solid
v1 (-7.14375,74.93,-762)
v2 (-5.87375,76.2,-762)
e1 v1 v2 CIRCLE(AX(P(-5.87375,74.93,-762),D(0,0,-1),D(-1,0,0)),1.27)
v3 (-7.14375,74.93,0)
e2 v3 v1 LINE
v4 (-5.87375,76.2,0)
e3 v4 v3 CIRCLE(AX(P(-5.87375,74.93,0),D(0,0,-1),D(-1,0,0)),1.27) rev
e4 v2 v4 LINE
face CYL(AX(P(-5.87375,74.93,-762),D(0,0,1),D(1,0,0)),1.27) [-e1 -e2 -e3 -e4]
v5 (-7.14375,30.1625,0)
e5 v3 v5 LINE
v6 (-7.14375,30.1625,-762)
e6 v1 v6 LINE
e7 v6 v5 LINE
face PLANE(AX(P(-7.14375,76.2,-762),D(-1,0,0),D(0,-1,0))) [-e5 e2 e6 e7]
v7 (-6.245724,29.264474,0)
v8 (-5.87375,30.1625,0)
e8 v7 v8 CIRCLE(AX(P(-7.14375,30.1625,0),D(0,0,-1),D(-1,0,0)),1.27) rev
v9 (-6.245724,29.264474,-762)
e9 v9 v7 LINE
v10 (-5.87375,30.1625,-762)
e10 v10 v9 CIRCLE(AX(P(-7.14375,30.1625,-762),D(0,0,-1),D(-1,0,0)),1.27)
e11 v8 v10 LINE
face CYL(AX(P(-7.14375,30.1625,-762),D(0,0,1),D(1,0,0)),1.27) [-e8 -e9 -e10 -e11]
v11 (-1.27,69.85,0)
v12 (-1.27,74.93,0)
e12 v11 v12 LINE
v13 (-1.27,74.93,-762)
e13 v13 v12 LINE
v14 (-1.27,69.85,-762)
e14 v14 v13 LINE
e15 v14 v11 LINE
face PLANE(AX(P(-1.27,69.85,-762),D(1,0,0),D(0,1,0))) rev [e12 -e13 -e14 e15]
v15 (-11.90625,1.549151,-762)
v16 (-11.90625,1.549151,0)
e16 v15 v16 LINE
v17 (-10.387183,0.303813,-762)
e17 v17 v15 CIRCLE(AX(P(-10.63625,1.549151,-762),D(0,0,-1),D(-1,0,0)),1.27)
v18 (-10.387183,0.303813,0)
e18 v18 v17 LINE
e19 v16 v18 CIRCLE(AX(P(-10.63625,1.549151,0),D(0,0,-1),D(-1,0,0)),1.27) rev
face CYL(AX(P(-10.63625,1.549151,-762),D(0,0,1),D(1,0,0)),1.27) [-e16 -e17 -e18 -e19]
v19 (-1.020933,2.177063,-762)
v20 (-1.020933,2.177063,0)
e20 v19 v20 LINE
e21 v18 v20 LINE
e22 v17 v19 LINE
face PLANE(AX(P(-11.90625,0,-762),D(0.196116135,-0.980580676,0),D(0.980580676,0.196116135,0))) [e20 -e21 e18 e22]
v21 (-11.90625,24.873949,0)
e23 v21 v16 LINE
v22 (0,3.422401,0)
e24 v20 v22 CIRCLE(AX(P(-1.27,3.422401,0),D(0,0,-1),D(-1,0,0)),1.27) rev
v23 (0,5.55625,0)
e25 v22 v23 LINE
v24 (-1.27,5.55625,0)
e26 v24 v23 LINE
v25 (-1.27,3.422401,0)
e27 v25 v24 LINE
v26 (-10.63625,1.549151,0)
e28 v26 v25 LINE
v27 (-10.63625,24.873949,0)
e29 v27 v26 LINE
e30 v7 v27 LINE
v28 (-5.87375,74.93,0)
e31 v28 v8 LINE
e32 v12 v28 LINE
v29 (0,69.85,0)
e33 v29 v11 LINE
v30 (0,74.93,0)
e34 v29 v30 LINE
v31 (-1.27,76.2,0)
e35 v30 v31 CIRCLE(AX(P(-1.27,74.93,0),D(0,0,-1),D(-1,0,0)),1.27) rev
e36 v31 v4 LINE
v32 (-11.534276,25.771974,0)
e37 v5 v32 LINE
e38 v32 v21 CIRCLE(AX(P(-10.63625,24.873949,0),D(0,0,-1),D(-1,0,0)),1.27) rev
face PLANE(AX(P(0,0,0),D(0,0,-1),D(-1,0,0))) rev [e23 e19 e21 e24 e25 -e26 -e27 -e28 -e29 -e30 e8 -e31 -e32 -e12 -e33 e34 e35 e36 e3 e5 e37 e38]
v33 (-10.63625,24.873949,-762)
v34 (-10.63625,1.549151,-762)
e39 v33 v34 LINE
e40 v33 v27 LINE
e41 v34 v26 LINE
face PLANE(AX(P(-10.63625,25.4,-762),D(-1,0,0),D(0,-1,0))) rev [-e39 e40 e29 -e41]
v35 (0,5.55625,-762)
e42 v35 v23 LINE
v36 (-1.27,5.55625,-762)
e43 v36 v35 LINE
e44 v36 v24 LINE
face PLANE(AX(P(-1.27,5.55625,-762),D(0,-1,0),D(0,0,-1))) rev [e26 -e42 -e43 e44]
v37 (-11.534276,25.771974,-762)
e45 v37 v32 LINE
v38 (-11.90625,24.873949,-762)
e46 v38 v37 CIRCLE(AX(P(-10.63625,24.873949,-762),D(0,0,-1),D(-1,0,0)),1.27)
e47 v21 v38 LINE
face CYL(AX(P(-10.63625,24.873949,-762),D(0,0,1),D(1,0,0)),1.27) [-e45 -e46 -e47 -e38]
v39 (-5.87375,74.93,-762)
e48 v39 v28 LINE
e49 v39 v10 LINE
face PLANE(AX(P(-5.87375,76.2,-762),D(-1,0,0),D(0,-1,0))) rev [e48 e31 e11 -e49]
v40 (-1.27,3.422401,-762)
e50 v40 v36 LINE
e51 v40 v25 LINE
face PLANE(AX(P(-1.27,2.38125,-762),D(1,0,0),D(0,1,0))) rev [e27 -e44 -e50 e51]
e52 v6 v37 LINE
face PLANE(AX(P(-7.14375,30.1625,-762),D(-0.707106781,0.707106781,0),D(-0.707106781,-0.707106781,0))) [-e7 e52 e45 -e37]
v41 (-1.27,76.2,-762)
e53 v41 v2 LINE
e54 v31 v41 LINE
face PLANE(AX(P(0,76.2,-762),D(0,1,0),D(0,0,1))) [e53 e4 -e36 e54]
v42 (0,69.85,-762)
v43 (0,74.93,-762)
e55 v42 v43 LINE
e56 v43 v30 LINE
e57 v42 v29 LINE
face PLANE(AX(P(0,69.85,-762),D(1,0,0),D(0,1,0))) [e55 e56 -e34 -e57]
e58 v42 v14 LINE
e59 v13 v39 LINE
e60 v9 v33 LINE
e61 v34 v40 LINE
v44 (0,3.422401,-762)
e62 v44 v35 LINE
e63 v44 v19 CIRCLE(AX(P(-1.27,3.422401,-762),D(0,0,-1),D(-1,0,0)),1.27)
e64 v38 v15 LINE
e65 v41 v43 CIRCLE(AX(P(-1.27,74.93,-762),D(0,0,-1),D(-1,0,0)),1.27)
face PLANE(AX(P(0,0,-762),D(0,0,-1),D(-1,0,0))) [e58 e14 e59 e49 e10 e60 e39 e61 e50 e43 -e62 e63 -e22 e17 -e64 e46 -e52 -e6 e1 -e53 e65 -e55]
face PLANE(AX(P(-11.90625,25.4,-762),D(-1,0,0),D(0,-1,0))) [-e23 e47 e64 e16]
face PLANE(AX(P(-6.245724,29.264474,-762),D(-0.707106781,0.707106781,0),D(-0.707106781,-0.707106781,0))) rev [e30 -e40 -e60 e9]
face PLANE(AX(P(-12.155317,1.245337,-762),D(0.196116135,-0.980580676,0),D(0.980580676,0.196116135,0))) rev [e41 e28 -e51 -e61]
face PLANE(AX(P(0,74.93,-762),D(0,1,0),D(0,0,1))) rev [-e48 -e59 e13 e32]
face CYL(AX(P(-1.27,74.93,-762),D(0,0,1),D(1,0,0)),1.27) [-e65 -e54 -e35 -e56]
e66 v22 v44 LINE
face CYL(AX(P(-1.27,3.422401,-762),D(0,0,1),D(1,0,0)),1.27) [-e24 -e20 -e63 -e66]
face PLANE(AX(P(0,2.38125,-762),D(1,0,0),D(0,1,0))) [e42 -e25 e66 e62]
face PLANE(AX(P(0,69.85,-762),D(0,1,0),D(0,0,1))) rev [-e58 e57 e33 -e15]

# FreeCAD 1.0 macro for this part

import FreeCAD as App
import Part
import Sketcher

V = App.Vector
Q = App.Units.Quantity


def edges_at(feature, points):
    """Names of the edges that pass closest to the given points."""
    edges = feature.Shape.Edges
    near = lambda p: min(range(len(edges)), key=lambda i: edges[i].distToShape(Part.Vertex(*p))[0])
    return sorted({f"Edge{near(p) + 1}" for p in points})

doc = App.newDocument("Part")
body = doc.addObject("PartDesign::Body", "Body")

# Sketch on XY plane
sketch1 = body.newObject("Sketcher::SketchObject", "Sketch")
sketch1.AttachmentSupport = (doc.getObject("XY_Plane"), [""])
sketch1.MapMode = "FlatFace"
sketch1.addGeometry([
    Part.LineSegment(V(0, 69.85, 0), V(0, 76.2, 0)),  # 0
    Part.LineSegment(V(0, 76.2, 0), V(-7.14375, 76.2, 0)),  # 1
    Part.LineSegment(V(-7.14375, 76.2, 0), V(-7.14375, 30.1625, 0)),  # 2
    Part.LineSegment(V(-7.14375, 30.1625, 0), V(-11.90625, 25.4, 0)),  # 3
    Part.LineSegment(V(-11.90625, 25.4, 0), V(-11.90625, 0, 0)),  # 4
    Part.LineSegment(V(-11.90625, 0, 0), V(0, 2.38125, 0)),  # 5
    Part.LineSegment(V(0, 2.38125, 0), V(0, 5.55625, 0)),  # 6
    Part.LineSegment(V(0, 5.55625, 0), V(-1.27, 5.55625, 0)),  # 7
    Part.LineSegment(V(-1.27, 5.55625, 0), V(-1.27, 3.422401, 0)),  # 8
    Part.LineSegment(V(-1.27, 3.422401, 0), V(-10.63625, 1.549151, 0)),  # 9
    Part.LineSegment(V(-10.63625, 1.549151, 0), V(-10.63625, 24.873949, 0)),  # 10
    Part.LineSegment(V(-10.63625, 24.873949, 0), V(-5.87375, 29.636449, 0)),  # 11
    Part.LineSegment(V(-5.87375, 29.636449, 0), V(-5.87375, 74.93, 0)),  # 12
    Part.LineSegment(V(-5.87375, 74.93, 0), V(-1.27, 74.93, 0)),  # 13
    Part.LineSegment(V(-1.27, 74.93, 0), V(-1.27, 69.85, 0)),  # 14
    Part.LineSegment(V(-1.27, 69.85, 0), V(0, 69.85, 0)),  # 15
], False)
sketch1.addConstraint([
    Sketcher.Constraint("Coincident", 0, 2, 1, 1),
    Sketcher.Constraint("Coincident", 1, 2, 2, 1),
    Sketcher.Constraint("Coincident", 2, 2, 3, 1),
    Sketcher.Constraint("Coincident", 3, 2, 4, 1),
    Sketcher.Constraint("Coincident", 4, 2, 5, 1),
    Sketcher.Constraint("Coincident", 5, 2, 6, 1),
    Sketcher.Constraint("Coincident", 6, 2, 7, 1),
    Sketcher.Constraint("Coincident", 7, 2, 8, 1),
    Sketcher.Constraint("Coincident", 8, 2, 9, 1),
    Sketcher.Constraint("Coincident", 9, 2, 10, 1),
    Sketcher.Constraint("Coincident", 10, 2, 11, 1),
    Sketcher.Constraint("Coincident", 11, 2, 12, 1),
    Sketcher.Constraint("Coincident", 12, 2, 13, 1),
    Sketcher.Constraint("Coincident", 13, 2, 14, 1),
    Sketcher.Constraint("Coincident", 14, 2, 15, 1),
    Sketcher.Constraint("Coincident", 15, 2, 0, 1),
    Sketcher.Constraint("Vertical", 0),
    Sketcher.Constraint("Horizontal", 1),
    Sketcher.Constraint("Vertical", 2),
    Sketcher.Constraint("Vertical", 4),
    Sketcher.Constraint("Vertical", 6),
    Sketcher.Constraint("Horizontal", 7),
    Sketcher.Constraint("Vertical", 8),
    Sketcher.Constraint("Vertical", 10),
    Sketcher.Constraint("Vertical", 12),
    Sketcher.Constraint("Horizontal", 13),
    Sketcher.Constraint("Vertical", 14),
    Sketcher.Constraint("Horizontal", 15),
    Sketcher.Constraint("PointOnObject", 0, 2, -2),
    Sketcher.Constraint("PointOnObject", 4, 2, -1),
    Sketcher.Constraint("PointOnObject", 5, 2, -2),
    Sketcher.Constraint("Parallel", 5, 9),
    Sketcher.Constraint("Parallel", 3, 11),
    Sketcher.Constraint("Vertical", 8, 2, 13, 2),
    Sketcher.Constraint("Equal", 3, 11),
    Sketcher.Constraint("DistanceY", 4, 2, 4, 1, Q("1 in")),
    Sketcher.Constraint("DistanceY", 14, 2, 14, 1, Q("0.2 in")),
    Sketcher.Constraint("DistanceY", -1, 1, 0, 2, Q("3 in")),
    Sketcher.Constraint("Angle", 3, Q("-135 deg")),
    Sketcher.Constraint("DistanceX", 7, 2, 7, 1, Q("0.05 in")),
    Sketcher.Constraint("DistanceY", 0, 1, 0, 2, Q("0.25 in")),
    Sketcher.Constraint("DistanceX", 1, 2, 1, 1, Q("0.28125 in")),
    Sketcher.Constraint("DistanceY", 2, 2, 2, 1, Q("1.8125 in")),
    Sketcher.Constraint("DistanceY", 6, 1, 6, 2, Q("0.125 in")),
    Sketcher.Constraint("DistanceX", 4, 2, 9, 2, Q("0.05 in")),
    Sketcher.Constraint("DistanceY", -1, 1, 5, 2, Q("0.09375 in")),
    Sketcher.Constraint("DistanceY", 8, 2, 8, 1, 2.133849),
    Sketcher.Constraint("DistanceY", 12, 1, 12, 2, 45.293551),
])
pad1 = body.newObject("PartDesign::Pad", "Pad")
pad1.Profile = sketch1
pad1.Length = Q("30 in")
pad1.Reversed = True
doc.recompute()

fillet = body.newObject("PartDesign::Fillet", "Fillet")
fillet.Base = (pad1, edges_at(pad1, [
    (0, 2.381, -381),
    (-11.906, 0, -381),
    (-11.906, 25.4, -381),
    (-7.144, 76.2, -381),
    (0, 76.2, -381),
    (-5.874, 29.636, -381),
]))
fillet.Radius = Q("0.05 in")

doc.recompute()
